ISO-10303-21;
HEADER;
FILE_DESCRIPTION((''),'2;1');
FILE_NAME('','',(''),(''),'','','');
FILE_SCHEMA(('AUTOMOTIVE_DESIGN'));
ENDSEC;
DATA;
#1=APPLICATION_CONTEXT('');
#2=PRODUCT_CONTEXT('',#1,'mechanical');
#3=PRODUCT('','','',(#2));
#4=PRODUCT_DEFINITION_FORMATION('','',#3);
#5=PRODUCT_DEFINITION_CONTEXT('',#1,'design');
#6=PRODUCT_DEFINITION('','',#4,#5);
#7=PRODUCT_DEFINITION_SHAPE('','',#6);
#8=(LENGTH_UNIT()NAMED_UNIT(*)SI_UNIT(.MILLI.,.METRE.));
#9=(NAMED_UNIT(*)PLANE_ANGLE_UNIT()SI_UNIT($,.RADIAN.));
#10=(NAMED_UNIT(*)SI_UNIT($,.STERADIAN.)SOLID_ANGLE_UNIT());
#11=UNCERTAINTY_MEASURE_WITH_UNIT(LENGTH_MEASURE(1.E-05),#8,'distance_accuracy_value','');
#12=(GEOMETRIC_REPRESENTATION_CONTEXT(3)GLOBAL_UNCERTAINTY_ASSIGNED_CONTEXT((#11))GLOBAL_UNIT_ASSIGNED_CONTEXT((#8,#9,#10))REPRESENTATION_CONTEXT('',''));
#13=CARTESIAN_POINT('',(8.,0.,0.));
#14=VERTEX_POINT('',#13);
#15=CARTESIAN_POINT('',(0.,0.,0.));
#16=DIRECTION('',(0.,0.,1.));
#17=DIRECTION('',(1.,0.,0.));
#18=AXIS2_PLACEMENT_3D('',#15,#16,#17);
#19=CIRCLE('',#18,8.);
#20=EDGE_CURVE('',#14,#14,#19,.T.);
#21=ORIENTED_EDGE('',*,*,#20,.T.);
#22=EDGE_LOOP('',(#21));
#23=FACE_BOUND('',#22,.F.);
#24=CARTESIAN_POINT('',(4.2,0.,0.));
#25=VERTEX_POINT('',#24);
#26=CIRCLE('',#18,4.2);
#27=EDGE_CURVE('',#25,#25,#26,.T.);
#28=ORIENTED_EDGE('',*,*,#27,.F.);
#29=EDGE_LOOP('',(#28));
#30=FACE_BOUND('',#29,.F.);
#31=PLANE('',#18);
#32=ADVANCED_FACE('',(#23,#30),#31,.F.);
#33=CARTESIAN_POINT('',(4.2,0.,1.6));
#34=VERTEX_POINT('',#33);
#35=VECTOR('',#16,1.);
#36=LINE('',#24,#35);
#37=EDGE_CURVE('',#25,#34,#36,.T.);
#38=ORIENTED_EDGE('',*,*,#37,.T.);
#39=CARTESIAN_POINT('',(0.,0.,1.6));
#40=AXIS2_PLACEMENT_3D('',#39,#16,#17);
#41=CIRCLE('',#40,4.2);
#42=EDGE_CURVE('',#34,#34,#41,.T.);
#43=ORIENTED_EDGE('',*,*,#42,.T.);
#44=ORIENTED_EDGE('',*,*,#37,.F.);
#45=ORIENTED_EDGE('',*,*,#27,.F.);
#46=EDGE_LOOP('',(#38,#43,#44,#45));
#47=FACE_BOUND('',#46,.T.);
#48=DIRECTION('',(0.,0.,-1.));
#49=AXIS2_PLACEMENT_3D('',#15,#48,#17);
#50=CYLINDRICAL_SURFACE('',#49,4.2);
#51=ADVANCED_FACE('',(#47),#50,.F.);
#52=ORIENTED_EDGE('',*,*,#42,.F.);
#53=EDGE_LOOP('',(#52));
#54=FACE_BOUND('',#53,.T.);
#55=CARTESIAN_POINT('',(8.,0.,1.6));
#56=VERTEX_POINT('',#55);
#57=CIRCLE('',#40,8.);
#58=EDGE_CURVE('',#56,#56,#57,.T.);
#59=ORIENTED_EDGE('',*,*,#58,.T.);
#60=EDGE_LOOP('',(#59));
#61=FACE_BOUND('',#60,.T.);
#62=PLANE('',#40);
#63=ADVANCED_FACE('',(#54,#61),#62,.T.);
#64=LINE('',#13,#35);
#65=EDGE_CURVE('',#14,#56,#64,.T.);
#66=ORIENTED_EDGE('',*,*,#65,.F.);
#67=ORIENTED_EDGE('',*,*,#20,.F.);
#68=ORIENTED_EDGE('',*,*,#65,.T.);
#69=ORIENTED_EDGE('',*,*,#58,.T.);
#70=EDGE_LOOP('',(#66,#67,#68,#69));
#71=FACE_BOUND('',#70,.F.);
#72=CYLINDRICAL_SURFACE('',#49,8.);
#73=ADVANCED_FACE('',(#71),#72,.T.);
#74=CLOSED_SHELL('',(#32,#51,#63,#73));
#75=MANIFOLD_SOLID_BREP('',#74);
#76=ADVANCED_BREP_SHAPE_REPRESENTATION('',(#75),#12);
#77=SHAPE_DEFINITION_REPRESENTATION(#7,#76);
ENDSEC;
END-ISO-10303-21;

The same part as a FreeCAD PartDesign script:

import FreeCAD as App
import Part
import Sketcher

V = App.Vector
Q = App.Units.Quantity

doc = App.newDocument("Part")
body = doc.addObject("PartDesign::Body", "Body")

sketch1 = body.newObject("Sketcher::SketchObject", "Sketch")
sketch1.AttachmentSupport = (doc.getObject("XY_Plane"), [""])
sketch1.MapMode = "FlatFace"
sketch1.addGeometry([
    Part.Circle(V(0, 0, 0), V(0, 0, 1), 8),
    Part.Circle(V(0, 0, 0), V(0, 0, 1), 4.2),
], False)
sketch1.addConstraint([
    Sketcher.Constraint("Coincident", 0, 3, -1, 1),
    Sketcher.Constraint("Coincident", 1, 3, -1, 1),
    Sketcher.Constraint("Diameter", 0, Q("16 mm")),
    Sketcher.Constraint("Diameter", 1, Q("8.4 mm")),
])
pad1 = body.newObject("PartDesign::Pad", "Pad")
pad1.Profile = sketch1
pad1.Length = 1.6

doc.recompute()
